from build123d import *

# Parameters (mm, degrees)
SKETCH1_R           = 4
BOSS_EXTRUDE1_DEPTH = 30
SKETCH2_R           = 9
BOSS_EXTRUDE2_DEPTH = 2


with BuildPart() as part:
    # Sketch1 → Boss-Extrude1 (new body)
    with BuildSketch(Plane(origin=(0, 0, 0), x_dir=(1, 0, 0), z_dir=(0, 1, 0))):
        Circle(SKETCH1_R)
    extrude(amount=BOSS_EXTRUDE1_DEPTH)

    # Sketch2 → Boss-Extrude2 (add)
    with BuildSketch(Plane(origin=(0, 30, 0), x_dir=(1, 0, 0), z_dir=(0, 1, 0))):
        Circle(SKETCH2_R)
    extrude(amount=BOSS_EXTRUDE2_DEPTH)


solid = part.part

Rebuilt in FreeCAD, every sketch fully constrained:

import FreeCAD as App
import Part
import Sketcher
from FreeCAD import Vector

doc = App.newDocument("Part")
body = doc.addObject("PartDesign::Body", "Body")

# Sketch on XZ plane
sketch1 = doc.addObject("Sketcher::SketchObject", "Sketch")
body.addObject(sketch1)
sketch1.AttachmentSupport = (doc.XZ_Plane, [""])
sketch1.MapMode = "FlatFace"
sketch1.addGeometry(Part.Circle(Vector(0, 0, 0), Vector(0, 0, 1), 4), False)
sketch1.addConstraint([
    Sketcher.Constraint("Coincident", 0, 3, -1, 1),
    Sketcher.Constraint("Diameter", 0, 8.0),
])
pad1 = doc.addObject("PartDesign::Pad", "Pad")
body.addObject(pad1)
pad1.Profile = sketch1
pad1.Length = 30
pad1.Reversed = True

# Sketch on XZ plane
sketch2 = doc.addObject("Sketcher::SketchObject", "Sketch001")
body.addObject(sketch2)
sketch2.AttachmentSupport = (doc.XZ_Plane, [""])
sketch2.MapMode = "FlatFace"
sketch2.AttachmentOffset = App.Placement(Vector(0, 0, -30), App.Rotation())
sketch2.addGeometry(Part.Circle(Vector(0, 0, 0), Vector(0, 0, 1), 9), False)
sketch2.addConstraint([
    Sketcher.Constraint("Coincident", 0, 3, -1, 1),
    Sketcher.Constraint("Diameter", 0, 18.0),
])
pad2 = doc.addObject("PartDesign::Pad", "Pad001")
body.addObject(pad2)
pad2.Profile = sketch2
pad2.Length = 2
pad2.Reversed = True

doc.recompute()
